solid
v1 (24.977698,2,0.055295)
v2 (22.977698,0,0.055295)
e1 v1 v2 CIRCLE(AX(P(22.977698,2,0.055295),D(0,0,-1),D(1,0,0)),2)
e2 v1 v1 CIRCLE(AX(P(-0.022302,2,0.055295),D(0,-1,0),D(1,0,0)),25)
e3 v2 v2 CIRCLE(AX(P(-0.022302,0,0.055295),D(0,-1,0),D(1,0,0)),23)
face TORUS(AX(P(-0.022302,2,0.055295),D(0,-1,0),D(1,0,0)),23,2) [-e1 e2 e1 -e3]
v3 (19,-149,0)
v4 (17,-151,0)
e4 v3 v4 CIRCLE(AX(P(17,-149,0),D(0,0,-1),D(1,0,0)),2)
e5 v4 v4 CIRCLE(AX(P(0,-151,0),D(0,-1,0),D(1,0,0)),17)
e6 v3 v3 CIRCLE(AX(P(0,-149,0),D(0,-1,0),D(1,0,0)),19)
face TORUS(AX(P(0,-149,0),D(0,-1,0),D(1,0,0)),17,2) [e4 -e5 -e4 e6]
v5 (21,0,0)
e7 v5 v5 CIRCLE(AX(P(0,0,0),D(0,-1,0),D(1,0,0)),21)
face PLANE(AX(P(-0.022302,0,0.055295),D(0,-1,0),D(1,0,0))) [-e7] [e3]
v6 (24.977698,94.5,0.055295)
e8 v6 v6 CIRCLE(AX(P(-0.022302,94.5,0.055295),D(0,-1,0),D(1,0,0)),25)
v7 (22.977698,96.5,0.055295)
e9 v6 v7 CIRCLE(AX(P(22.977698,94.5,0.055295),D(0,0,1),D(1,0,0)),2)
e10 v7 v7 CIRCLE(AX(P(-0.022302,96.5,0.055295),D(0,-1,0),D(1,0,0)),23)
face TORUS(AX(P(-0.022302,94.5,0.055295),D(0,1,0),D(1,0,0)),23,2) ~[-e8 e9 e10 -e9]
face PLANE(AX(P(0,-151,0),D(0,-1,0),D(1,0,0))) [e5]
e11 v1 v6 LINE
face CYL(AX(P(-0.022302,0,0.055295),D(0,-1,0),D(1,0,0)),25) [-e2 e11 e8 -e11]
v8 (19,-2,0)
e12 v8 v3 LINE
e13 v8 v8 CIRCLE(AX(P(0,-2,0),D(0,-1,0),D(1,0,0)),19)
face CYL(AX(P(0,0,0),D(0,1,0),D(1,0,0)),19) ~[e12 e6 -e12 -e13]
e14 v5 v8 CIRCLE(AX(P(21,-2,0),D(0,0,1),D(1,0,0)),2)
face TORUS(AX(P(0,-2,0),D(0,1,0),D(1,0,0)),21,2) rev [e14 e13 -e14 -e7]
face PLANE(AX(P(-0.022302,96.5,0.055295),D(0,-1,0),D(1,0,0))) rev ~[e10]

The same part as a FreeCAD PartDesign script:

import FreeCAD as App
import Part
import Sketcher

doc = App.newDocument("Part")
params = doc.addObject("Spreadsheet::Sheet", "Params")
for row, (alias, value) in enumerate([
    ("sketch1_diameter", "38 mm"),
    ("pad1_length", "151 mm"),
    ("sketch2_diameter", "50 mm"),
    ("pad2_length", "96.5 mm"),
    ("fillet_radius", "2 mm"),
], start=1):
    params.set(f"A{row}", alias)
    params.set(f"B{row}", "=" + value)
    params.setAlias(f"B{row}", alias)

body = doc.addObject("PartDesign::Body", "Body")

# Sketch on XZ plane
sketch1 = body.newObject("Sketcher::SketchObject", "Sketch")
sketch1.AttachmentSupport = (doc.getObject("XZ_Plane"), [""])
sketch1.MapMode = "FlatFace"
sketch1.addGeometry(Part.Circle(App.Vector(0, 0, 0), App.Vector(0, 0, 1), 19), False)
sketch1.addConstraint([
    Sketcher.Constraint("Coincident", 0, 3, -1, 1),
    Sketcher.Constraint("Diameter", 0, 38.0),
])
sketch1.setExpression("Constraints[1]", "Params.sketch1_diameter")
pad1 = body.newObject("PartDesign::Pad", "Pad")
pad1.Profile = sketch1
pad1.setExpression("Length", "Params.pad1_length")

# Sketch on XZ plane
sketch2 = body.newObject("Sketcher::SketchObject", "Sketch001")
sketch2.AttachmentSupport = (doc.getObject("XZ_Plane"), [""])
sketch2.MapMode = "FlatFace"
sketch2.addGeometry(Part.Circle(App.Vector(0, 0, 0), App.Vector(0, 0, 1), 25), False)
sketch2.addConstraint([
    Sketcher.Constraint("Diameter", 0, 50.0),
    Sketcher.Constraint("DistanceX", 0, 3, -1, 1, 0.022302),
    Sketcher.Constraint("DistanceY", -1, 1, 0, 3, 0.055295),
])
sketch2.setExpression("Constraints[0]", "Params.sketch2_diameter")
pad2 = body.newObject("PartDesign::Pad", "Pad001")
pad2.Profile = sketch2
pad2.setExpression("Length", "Params.pad2_length")
pad2.Reversed = True
doc.recompute()

fillet = body.newObject("PartDesign::Fillet", "Fillet")
fillet.Base = (pad2, ["Edge1"])
fillet.UseAllEdges = True
fillet.setExpression("Radius", "Params.fillet_radius")

doc.recompute()
